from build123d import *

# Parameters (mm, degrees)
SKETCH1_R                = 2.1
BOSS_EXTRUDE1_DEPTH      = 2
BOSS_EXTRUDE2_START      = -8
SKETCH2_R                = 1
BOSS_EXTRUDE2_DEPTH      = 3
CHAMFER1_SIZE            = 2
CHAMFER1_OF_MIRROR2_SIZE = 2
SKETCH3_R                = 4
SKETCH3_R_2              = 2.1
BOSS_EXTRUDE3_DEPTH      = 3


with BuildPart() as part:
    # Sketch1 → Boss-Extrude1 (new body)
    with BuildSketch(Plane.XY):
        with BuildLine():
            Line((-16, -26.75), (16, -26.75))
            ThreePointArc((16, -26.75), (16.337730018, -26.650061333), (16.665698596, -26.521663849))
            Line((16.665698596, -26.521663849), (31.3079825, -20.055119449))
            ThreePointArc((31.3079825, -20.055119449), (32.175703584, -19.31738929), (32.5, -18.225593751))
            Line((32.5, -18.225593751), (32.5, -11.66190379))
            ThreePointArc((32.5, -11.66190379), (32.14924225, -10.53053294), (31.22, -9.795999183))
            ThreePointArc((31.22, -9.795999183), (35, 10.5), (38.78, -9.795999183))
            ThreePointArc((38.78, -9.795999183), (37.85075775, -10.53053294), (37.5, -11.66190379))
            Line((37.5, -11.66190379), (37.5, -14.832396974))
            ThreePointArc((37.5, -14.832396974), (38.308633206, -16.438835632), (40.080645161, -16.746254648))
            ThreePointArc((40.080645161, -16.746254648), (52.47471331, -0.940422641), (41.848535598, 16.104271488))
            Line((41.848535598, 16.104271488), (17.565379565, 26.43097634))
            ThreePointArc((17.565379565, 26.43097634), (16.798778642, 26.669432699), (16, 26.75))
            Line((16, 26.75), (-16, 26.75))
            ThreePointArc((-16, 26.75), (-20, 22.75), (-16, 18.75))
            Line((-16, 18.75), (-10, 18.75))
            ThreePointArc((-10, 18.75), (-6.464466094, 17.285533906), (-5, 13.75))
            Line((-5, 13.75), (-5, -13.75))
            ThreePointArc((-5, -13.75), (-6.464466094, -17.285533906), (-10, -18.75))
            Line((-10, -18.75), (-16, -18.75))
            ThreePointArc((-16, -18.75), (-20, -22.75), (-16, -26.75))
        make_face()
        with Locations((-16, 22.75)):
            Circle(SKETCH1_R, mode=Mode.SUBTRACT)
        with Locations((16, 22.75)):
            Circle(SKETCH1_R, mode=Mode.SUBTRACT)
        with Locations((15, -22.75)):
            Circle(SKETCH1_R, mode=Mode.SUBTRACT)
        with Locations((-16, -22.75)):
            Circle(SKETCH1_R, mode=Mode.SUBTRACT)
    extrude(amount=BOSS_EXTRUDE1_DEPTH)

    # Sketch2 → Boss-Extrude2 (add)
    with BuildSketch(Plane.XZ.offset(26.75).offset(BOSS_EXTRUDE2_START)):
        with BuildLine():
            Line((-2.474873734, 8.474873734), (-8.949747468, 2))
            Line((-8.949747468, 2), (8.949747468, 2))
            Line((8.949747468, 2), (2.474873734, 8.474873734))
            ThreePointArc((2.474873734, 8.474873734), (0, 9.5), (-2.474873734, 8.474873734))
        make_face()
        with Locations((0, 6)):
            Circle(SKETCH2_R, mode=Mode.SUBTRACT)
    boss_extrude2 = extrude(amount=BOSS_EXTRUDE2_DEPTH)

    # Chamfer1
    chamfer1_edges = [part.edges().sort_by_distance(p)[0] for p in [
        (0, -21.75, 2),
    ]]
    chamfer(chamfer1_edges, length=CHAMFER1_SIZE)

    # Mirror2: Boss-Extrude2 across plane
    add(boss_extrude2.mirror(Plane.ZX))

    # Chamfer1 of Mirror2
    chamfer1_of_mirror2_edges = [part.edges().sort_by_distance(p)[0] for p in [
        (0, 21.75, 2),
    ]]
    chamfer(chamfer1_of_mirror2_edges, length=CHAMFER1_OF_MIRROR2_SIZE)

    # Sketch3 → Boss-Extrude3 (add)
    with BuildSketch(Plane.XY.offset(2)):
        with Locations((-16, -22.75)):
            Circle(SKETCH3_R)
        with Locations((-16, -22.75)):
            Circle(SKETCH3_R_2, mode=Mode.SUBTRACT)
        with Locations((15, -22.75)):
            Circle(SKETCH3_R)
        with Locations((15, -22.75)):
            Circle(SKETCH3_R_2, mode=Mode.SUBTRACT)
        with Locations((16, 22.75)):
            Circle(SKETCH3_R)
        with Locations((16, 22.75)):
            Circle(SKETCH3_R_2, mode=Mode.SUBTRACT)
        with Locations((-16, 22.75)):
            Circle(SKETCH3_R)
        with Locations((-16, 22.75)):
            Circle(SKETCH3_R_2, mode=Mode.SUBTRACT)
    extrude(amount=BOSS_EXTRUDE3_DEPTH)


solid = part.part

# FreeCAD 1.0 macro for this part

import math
import FreeCAD as App
import Part
import Sketcher

V = App.Vector
Q = App.Units.Quantity


def edges_at(feature, points):
    """Names of the edges that pass closest to the given points."""
    edges = feature.Shape.Edges
    near = lambda p: min(range(len(edges)), key=lambda i: edges[i].distToShape(Part.Vertex(*p))[0])
    return sorted({f"Edge{near(p) + 1}" for p in points})

doc = App.newDocument("Part")
params = doc.addObject("Spreadsheet::Sheet", "Params")
for row, (alias, value) in enumerate([
    ("sketch1_radius", "2 mm"),
    ("sketch1_radius2", "4 mm"),
    ("sketch1_radius3", "5 mm"),
    ("sketch1_diameter", "4.2 mm"),
    ("sketch1_radius4", "10.5 mm"),
    ("pad1_length", "2 mm"),
    ("sketch2_diameter", "2 mm"),
    ("sketch2_radius", "3.5 mm"),
    ("pad2_length", "3 mm"),
    ("chamfer_size", "2 mm"),
    ("chamfer2_size", "2 mm"),
    ("sketch3_diameter", "8 mm"),
    ("sketch3_diameter2", "4.2 mm"),
    ("pad3_length", "3 mm"),
], start=1):
    params.set(f"A{row}", alias)
    params.set(f"B{row}", "=" + value)
    params.setAlias(f"B{row}", alias)

body = doc.addObject("PartDesign::Body", "Body")

# Sketch on XY plane
sketch1 = body.newObject("Sketcher::SketchObject", "Sketch")
sketch1.AttachmentSupport = (doc.getObject("XY_Plane"), [""])
sketch1.MapMode = "FlatFace"
sketch1.addGeometry([
    Part.LineSegment(V(-16, -26.75, 0), V(16, -26.75, 0)),  # 0
    Part.ArcOfCircle(Part.Circle(V(15, -22.75, 0), V(0, 0, 1), 4.123106), math.radians(-75.963757), math.radians(-66.172071)),  # 1
    Part.LineSegment(V(16.665699, -26.521664, 0), V(31.307983, -20.055119, 0)),  # 2
    Part.ArcOfCircle(Part.Circle(V(30.5, -18.225594, 0), V(0, 0, 1), 2), math.radians(-66.172071), math.radians(0)),  # 3
    Part.LineSegment(V(32.5, -18.225594, 0), V(32.5, -11.661904, 0)),  # 4
    Part.ArcOfCircle(Part.Circle(V(30.5, -11.661904, 0), V(0, 0, 1), 2), math.radians(0), math.radians(68.899804)),  # 5
    Part.ArcOfCircle(Part.Circle(V(35, 0, 0), V(0, 0, 1), 10.5), math.radians(-68.899804), math.radians(248.899804)),  # 6
    Part.ArcOfCircle(Part.Circle(V(39.5, -11.661904, 0), V(0, 0, 1), 2), math.radians(111.100196), math.radians(180)),  # 7
    Part.LineSegment(V(37.5, -11.661904, 0), V(37.5, -14.832397, 0)),  # 8
    Part.ArcOfCircle(Part.Circle(V(39.5, -14.832397, 0), V(0, 0, 1), 2), math.radians(180), math.radians(286.877269)),  # 9
    Part.ArcOfCircle(Part.Circle(V(35, 0, 0), V(0, 0, 1), 17.5), math.radians(-73.122731), math.radians(66.961792)),  # 10
    Part.LineSegment(V(41.848536, 16.104271, 0), V(17.56538, 26.430976, 0)),  # 11
    Part.ArcOfCircle(Part.Circle(V(16, 22.75, 0), V(0, 0, 1), 4), math.radians(66.961792), math.radians(90)),  # 12
    Part.LineSegment(V(16, 26.75, 0), V(-16, 26.75, 0)),  # 13
    Part.ArcOfCircle(Part.Circle(V(-16, 22.75, 0), V(0, 0, 1), 4), math.radians(90), math.radians(270)),  # 14
    Part.LineSegment(V(-16, 18.75, 0), V(-10, 18.75, 0)),  # 15
    Part.ArcOfCircle(Part.Circle(V(-10, 13.75, 0), V(0, 0, 1), 5), math.radians(0), math.radians(90)),  # 16
    Part.LineSegment(V(-5, 13.75, 0), V(-5, -13.75, 0)),  # 17
    Part.ArcOfCircle(Part.Circle(V(-10, -13.75, 0), V(0, 0, 1), 5), math.radians(-90), math.radians(0)),  # 18
    Part.LineSegment(V(-10, -18.75, 0), V(-16, -18.75, 0)),  # 19
    Part.ArcOfCircle(Part.Circle(V(-16, -22.75, 0), V(0, 0, 1), 4), math.radians(90), math.radians(270)),  # 20
    Part.Circle(V(-16, -22.75, 0), V(0, 0, 1), 2.1),  # 21
    Part.Circle(V(15, -22.75, 0), V(0, 0, 1), 2.1),  # 22
    Part.Circle(V(-16, 22.75, 0), V(0, 0, 1), 2.1),  # 23
    Part.Circle(V(16, 22.75, 0), V(0, 0, 1), 2.1),  # 24
], False)
sketch1.addConstraint([
    Sketcher.Constraint("Coincident", 0, 2, 1, 1),
    Sketcher.Constraint("Tangent", 1, 2, 2, 1),
    Sketcher.Constraint("Tangent", 2, 2, 3, 1),
    Sketcher.Constraint("Tangent", 3, 2, 4, 1),
    Sketcher.Constraint("Tangent", 4, 2, 5, 1),
    Sketcher.Constraint("Tangent", 5, 2, 6, 2),
    Sketcher.Constraint("Tangent", 6, 1, 7, 1),
    Sketcher.Constraint("Tangent", 7, 2, 8, 1),
    Sketcher.Constraint("Tangent", 8, 2, 9, 1),
    Sketcher.Constraint("Tangent", 9, 2, 10, 1),
    Sketcher.Constraint("Tangent", 10, 2, 11, 1),
    Sketcher.Constraint("Tangent", 11, 2, 12, 1),
    Sketcher.Constraint("Tangent", 12, 2, 13, 1),
    Sketcher.Constraint("Tangent", 13, 2, 14, 1),
    Sketcher.Constraint("Tangent", 14, 2, 15, 1),
    Sketcher.Constraint("Tangent", 15, 2, 16, 2),
    Sketcher.Constraint("Tangent", 16, 1, 17, 1),
    Sketcher.Constraint("Tangent", 17, 2, 18, 2),
    Sketcher.Constraint("Tangent", 18, 1, 19, 1),
    Sketcher.Constraint("Tangent", 19, 2, 20, 1),
    Sketcher.Constraint("Tangent", 20, 2, 0, 1),
    Sketcher.Constraint("Horizontal", 0),
    Sketcher.Constraint("Vertical", 4),
    Sketcher.Constraint("Vertical", 8),
    Sketcher.Constraint("Horizontal", 13),
    Sketcher.Constraint("Horizontal", 15),
    Sketcher.Constraint("Vertical", 17),
    Sketcher.Constraint("Horizontal", 19),
    Sketcher.Constraint("Coincident", 10, 3, 6, 3),
    Sketcher.Constraint("Coincident", 21, 3, 20, 3),
    Sketcher.Constraint("Coincident", 22, 3, 1, 3),
    Sketcher.Constraint("Coincident", 23, 3, 14, 3),
    Sketcher.Constraint("Coincident", 24, 3, 12, 3),
    Sketcher.Constraint("Equal", 3, 5),
    Sketcher.Constraint("Equal", 5, 7),
    Sketcher.Constraint("Equal", 7, 9),
    Sketcher.Constraint("Equal", 12, 14),
    Sketcher.Constraint("Equal", 16, 18),
    Sketcher.Constraint("Equal", 14, 20),
    Sketcher.Constraint("Equal", 21, 22),
    Sketcher.Constraint("Equal", 22, 23),
    Sketcher.Constraint("Equal", 23, 24),
    Sketcher.Constraint("Symmetric", 12, 3, 20, 3, -1, 1),
    Sketcher.Constraint("PointOnObject", 6, 3, -1),
    Sketcher.Constraint("Horizontal", 5, 3, 7, 3),
    Sketcher.Constraint("Horizontal", 1, 3, 20, 3),
    Sketcher.Constraint("Vertical", 14, 3, 20, 3),
    Sketcher.Constraint("Vertical", 24, 3, 0, 2),
    Sketcher.Constraint("Radius", 3, Q("2 mm")),
    Sketcher.Constraint("Radius", 12, Q("4 mm")),
    Sketcher.Constraint("Radius", 16, Q("5 mm")),
    Sketcher.Constraint("Diameter", 21, Q("4.2 mm")),
    Sketcher.Constraint("Radius", 6, Q("10.5 mm")),
    Sketcher.Constraint("Radius", 10, Q("17.5 mm")),
    Sketcher.Constraint("DistanceX", 0, 1, 0, 2, Q("32 mm")),
    Sketcher.Constraint("DistanceX", 15, 1, 15, 2, Q("6 mm")),
    Sketcher.Constraint("DistanceY", 17, 2, 17, 1, Q("27.5 mm")),
    Sketcher.Constraint("DistanceX", -1, 1, 1, 3, Q("15 mm")),
    Sketcher.Constraint("DistanceX", -1, 1, 6, 3, Q("35 mm")),
    Sketcher.Constraint("DistanceX", 5, 3, 7, 3, Q("9 mm")),
    Sketcher.Constraint("DistanceY", 4, 1, 4, 2, Q("6.56369 mm")),
])
sketch1.setExpression("Constraints[48]", "Params.sketch1_radius")
sketch1.setExpression("Constraints[49]", "Params.sketch1_radius2")
sketch1.setExpression("Constraints[50]", "Params.sketch1_radius3")
sketch1.setExpression("Constraints[51]", "Params.sketch1_diameter")
sketch1.setExpression("Constraints[52]", "Params.sketch1_radius4")
pad1 = body.newObject("PartDesign::Pad", "Pad")
pad1.Profile = sketch1
pad1.setExpression("Length", "Params.pad1_length")

# Sketch on XZ plane
sketch2 = body.newObject("Sketcher::SketchObject", "Sketch001")
sketch2.AttachmentSupport = (doc.getObject("XZ_Plane"), [""])
sketch2.MapMode = "FlatFace"
sketch2.AttachmentOffset = App.Placement(V(0, 0, 18.75), App.Rotation())
sketch2.addGeometry([
    Part.LineSegment(V(-2.474874, 8.474874, 0), V(-8.949747, 2, 0)),  # 0
    Part.LineSegment(V(-8.949747, 2, 0), V(8.949747, 2, 0)),  # 1
    Part.LineSegment(V(8.949747, 2, 0), V(2.474874, 8.474874, 0)),  # 2
    Part.ArcOfCircle(Part.Circle(V(0, 6, 0), V(0, 0, 1), 3.5), math.radians(45), math.radians(135)),  # 3
    Part.Circle(V(0, 6, 0), V(0, 0, 1), 1),  # 4
], False)
sketch2.addConstraint([
    Sketcher.Constraint("Coincident", 0, 2, 1, 1),
    Sketcher.Constraint("Coincident", 1, 2, 2, 1),
    Sketcher.Constraint("Tangent", 2, 2, 3, 1),
    Sketcher.Constraint("Tangent", 3, 2, 0, 1),
    Sketcher.Constraint("Horizontal", 1),
    Sketcher.Constraint("Coincident", 4, 3, 3, 3),
    Sketcher.Constraint("Symmetric", 2, 2, 3, 2, -2),
    Sketcher.Constraint("Perpendicular", 0, 2),
    Sketcher.Constraint("Diameter", 4, Q("2 mm")),
    Sketcher.Constraint("Radius", 3, Q("3.5 mm")),
    Sketcher.Constraint("DistanceY", -1, 1, 3, 3, Q("6 mm")),
    Sketcher.Constraint("DistanceY", -1, 1, 0, 2, Q("2 mm")),
])
sketch2.setExpression("Constraints[8]", "Params.sketch2_diameter")
sketch2.setExpression("Constraints[9]", "Params.sketch2_radius")
pad2 = body.newObject("PartDesign::Pad", "Pad001")
pad2.Profile = sketch2
pad2.setExpression("Length", "Params.pad2_length")
doc.recompute()

chamfer = body.newObject("PartDesign::Chamfer", "Chamfer")
chamfer.Base = (pad2, edges_at(pad2, [(0, -21.75, 2)]))
chamfer.setExpression("Size", "Params.chamfer_size")
doc.recompute()

mirrored = body.newObject("PartDesign::Mirrored", "Mirrored")
mirrored.Originals = [pad2]
mirrored.MirrorPlane = (doc.getObject("XZ_Plane"), [""])
body.Tip = mirrored
doc.recompute()

chamfer2 = body.newObject("PartDesign::Chamfer", "Chamfer001")
chamfer2.Base = (mirrored, edges_at(mirrored, [(0, 21.75, 2)]))
chamfer2.setExpression("Size", "Params.chamfer2_size")

# Sketch on XY plane
sketch3 = body.newObject("Sketcher::SketchObject", "Sketch002")
sketch3.AttachmentSupport = (doc.getObject("XY_Plane"), [""])
sketch3.MapMode = "FlatFace"
sketch3.AttachmentOffset = App.Placement(V(0, 0, 2), App.Rotation())
sketch3.addGeometry([
    Part.Circle(V(-16, -22.75, 0), V(0, 0, 1), 4),  # 0
    Part.Circle(V(-16, -22.75, 0), V(0, 0, 1), 2.1),  # 1
    Part.Circle(V(15, -22.75, 0), V(0, 0, 1), 4),  # 2
    Part.Circle(V(15, -22.75, 0), V(0, 0, 1), 2.1),  # 3
    Part.Circle(V(16, 22.75, 0), V(0, 0, 1), 4),  # 4
    Part.Circle(V(16, 22.75, 0), V(0, 0, 1), 2.1),  # 5
    Part.Circle(V(-16, 22.75, 0), V(0, 0, 1), 4),  # 6
    Part.Circle(V(-16, 22.75, 0), V(0, 0, 1), 2.1),  # 7
], False)
sketch3.addConstraint([
    Sketcher.Constraint("Coincident", 1, 3, 0, 3),
    Sketcher.Constraint("Coincident", 3, 3, 2, 3),
    Sketcher.Constraint("Coincident", 5, 3, 4, 3),
    Sketcher.Constraint("Coincident", 7, 3, 6, 3),
    Sketcher.Constraint("Equal", 0, 2),
    Sketcher.Constraint("Equal", 1, 3),
    Sketcher.Constraint("Equal", 2, 4),
    Sketcher.Constraint("Equal", 3, 5),
    Sketcher.Constraint("Equal", 4, 6),
    Sketcher.Constraint("Equal", 5, 7),
    Sketcher.Constraint("Symmetric", 0, 3, 4, 3, -1, 1),
    Sketcher.Constraint("Symmetric", 4, 3, 6, 3, -2),
    Sketcher.Constraint("Horizontal", 1, 3, 2, 3),
    Sketcher.Constraint("Diameter", 0, Q("8 mm")),
    Sketcher.Constraint("Diameter", 1, Q("4.2 mm")),
    Sketcher.Constraint("DistanceX", 0, 3, -1, 1, Q("16 mm")),
    Sketcher.Constraint("DistanceX", -1, 1, 2, 3, Q("15 mm")),
    Sketcher.Constraint("DistanceY", 2, 3, 4, 3, Q("45.5 mm")),
])
sketch3.setExpression("Constraints[13]", "Params.sketch3_diameter")
sketch3.setExpression("Constraints[14]", "Params.sketch3_diameter2")
pad3 = body.newObject("PartDesign::Pad", "Pad002")
pad3.Profile = sketch3
pad3.setExpression("Length", "Params.pad3_length")

doc.recompute()
